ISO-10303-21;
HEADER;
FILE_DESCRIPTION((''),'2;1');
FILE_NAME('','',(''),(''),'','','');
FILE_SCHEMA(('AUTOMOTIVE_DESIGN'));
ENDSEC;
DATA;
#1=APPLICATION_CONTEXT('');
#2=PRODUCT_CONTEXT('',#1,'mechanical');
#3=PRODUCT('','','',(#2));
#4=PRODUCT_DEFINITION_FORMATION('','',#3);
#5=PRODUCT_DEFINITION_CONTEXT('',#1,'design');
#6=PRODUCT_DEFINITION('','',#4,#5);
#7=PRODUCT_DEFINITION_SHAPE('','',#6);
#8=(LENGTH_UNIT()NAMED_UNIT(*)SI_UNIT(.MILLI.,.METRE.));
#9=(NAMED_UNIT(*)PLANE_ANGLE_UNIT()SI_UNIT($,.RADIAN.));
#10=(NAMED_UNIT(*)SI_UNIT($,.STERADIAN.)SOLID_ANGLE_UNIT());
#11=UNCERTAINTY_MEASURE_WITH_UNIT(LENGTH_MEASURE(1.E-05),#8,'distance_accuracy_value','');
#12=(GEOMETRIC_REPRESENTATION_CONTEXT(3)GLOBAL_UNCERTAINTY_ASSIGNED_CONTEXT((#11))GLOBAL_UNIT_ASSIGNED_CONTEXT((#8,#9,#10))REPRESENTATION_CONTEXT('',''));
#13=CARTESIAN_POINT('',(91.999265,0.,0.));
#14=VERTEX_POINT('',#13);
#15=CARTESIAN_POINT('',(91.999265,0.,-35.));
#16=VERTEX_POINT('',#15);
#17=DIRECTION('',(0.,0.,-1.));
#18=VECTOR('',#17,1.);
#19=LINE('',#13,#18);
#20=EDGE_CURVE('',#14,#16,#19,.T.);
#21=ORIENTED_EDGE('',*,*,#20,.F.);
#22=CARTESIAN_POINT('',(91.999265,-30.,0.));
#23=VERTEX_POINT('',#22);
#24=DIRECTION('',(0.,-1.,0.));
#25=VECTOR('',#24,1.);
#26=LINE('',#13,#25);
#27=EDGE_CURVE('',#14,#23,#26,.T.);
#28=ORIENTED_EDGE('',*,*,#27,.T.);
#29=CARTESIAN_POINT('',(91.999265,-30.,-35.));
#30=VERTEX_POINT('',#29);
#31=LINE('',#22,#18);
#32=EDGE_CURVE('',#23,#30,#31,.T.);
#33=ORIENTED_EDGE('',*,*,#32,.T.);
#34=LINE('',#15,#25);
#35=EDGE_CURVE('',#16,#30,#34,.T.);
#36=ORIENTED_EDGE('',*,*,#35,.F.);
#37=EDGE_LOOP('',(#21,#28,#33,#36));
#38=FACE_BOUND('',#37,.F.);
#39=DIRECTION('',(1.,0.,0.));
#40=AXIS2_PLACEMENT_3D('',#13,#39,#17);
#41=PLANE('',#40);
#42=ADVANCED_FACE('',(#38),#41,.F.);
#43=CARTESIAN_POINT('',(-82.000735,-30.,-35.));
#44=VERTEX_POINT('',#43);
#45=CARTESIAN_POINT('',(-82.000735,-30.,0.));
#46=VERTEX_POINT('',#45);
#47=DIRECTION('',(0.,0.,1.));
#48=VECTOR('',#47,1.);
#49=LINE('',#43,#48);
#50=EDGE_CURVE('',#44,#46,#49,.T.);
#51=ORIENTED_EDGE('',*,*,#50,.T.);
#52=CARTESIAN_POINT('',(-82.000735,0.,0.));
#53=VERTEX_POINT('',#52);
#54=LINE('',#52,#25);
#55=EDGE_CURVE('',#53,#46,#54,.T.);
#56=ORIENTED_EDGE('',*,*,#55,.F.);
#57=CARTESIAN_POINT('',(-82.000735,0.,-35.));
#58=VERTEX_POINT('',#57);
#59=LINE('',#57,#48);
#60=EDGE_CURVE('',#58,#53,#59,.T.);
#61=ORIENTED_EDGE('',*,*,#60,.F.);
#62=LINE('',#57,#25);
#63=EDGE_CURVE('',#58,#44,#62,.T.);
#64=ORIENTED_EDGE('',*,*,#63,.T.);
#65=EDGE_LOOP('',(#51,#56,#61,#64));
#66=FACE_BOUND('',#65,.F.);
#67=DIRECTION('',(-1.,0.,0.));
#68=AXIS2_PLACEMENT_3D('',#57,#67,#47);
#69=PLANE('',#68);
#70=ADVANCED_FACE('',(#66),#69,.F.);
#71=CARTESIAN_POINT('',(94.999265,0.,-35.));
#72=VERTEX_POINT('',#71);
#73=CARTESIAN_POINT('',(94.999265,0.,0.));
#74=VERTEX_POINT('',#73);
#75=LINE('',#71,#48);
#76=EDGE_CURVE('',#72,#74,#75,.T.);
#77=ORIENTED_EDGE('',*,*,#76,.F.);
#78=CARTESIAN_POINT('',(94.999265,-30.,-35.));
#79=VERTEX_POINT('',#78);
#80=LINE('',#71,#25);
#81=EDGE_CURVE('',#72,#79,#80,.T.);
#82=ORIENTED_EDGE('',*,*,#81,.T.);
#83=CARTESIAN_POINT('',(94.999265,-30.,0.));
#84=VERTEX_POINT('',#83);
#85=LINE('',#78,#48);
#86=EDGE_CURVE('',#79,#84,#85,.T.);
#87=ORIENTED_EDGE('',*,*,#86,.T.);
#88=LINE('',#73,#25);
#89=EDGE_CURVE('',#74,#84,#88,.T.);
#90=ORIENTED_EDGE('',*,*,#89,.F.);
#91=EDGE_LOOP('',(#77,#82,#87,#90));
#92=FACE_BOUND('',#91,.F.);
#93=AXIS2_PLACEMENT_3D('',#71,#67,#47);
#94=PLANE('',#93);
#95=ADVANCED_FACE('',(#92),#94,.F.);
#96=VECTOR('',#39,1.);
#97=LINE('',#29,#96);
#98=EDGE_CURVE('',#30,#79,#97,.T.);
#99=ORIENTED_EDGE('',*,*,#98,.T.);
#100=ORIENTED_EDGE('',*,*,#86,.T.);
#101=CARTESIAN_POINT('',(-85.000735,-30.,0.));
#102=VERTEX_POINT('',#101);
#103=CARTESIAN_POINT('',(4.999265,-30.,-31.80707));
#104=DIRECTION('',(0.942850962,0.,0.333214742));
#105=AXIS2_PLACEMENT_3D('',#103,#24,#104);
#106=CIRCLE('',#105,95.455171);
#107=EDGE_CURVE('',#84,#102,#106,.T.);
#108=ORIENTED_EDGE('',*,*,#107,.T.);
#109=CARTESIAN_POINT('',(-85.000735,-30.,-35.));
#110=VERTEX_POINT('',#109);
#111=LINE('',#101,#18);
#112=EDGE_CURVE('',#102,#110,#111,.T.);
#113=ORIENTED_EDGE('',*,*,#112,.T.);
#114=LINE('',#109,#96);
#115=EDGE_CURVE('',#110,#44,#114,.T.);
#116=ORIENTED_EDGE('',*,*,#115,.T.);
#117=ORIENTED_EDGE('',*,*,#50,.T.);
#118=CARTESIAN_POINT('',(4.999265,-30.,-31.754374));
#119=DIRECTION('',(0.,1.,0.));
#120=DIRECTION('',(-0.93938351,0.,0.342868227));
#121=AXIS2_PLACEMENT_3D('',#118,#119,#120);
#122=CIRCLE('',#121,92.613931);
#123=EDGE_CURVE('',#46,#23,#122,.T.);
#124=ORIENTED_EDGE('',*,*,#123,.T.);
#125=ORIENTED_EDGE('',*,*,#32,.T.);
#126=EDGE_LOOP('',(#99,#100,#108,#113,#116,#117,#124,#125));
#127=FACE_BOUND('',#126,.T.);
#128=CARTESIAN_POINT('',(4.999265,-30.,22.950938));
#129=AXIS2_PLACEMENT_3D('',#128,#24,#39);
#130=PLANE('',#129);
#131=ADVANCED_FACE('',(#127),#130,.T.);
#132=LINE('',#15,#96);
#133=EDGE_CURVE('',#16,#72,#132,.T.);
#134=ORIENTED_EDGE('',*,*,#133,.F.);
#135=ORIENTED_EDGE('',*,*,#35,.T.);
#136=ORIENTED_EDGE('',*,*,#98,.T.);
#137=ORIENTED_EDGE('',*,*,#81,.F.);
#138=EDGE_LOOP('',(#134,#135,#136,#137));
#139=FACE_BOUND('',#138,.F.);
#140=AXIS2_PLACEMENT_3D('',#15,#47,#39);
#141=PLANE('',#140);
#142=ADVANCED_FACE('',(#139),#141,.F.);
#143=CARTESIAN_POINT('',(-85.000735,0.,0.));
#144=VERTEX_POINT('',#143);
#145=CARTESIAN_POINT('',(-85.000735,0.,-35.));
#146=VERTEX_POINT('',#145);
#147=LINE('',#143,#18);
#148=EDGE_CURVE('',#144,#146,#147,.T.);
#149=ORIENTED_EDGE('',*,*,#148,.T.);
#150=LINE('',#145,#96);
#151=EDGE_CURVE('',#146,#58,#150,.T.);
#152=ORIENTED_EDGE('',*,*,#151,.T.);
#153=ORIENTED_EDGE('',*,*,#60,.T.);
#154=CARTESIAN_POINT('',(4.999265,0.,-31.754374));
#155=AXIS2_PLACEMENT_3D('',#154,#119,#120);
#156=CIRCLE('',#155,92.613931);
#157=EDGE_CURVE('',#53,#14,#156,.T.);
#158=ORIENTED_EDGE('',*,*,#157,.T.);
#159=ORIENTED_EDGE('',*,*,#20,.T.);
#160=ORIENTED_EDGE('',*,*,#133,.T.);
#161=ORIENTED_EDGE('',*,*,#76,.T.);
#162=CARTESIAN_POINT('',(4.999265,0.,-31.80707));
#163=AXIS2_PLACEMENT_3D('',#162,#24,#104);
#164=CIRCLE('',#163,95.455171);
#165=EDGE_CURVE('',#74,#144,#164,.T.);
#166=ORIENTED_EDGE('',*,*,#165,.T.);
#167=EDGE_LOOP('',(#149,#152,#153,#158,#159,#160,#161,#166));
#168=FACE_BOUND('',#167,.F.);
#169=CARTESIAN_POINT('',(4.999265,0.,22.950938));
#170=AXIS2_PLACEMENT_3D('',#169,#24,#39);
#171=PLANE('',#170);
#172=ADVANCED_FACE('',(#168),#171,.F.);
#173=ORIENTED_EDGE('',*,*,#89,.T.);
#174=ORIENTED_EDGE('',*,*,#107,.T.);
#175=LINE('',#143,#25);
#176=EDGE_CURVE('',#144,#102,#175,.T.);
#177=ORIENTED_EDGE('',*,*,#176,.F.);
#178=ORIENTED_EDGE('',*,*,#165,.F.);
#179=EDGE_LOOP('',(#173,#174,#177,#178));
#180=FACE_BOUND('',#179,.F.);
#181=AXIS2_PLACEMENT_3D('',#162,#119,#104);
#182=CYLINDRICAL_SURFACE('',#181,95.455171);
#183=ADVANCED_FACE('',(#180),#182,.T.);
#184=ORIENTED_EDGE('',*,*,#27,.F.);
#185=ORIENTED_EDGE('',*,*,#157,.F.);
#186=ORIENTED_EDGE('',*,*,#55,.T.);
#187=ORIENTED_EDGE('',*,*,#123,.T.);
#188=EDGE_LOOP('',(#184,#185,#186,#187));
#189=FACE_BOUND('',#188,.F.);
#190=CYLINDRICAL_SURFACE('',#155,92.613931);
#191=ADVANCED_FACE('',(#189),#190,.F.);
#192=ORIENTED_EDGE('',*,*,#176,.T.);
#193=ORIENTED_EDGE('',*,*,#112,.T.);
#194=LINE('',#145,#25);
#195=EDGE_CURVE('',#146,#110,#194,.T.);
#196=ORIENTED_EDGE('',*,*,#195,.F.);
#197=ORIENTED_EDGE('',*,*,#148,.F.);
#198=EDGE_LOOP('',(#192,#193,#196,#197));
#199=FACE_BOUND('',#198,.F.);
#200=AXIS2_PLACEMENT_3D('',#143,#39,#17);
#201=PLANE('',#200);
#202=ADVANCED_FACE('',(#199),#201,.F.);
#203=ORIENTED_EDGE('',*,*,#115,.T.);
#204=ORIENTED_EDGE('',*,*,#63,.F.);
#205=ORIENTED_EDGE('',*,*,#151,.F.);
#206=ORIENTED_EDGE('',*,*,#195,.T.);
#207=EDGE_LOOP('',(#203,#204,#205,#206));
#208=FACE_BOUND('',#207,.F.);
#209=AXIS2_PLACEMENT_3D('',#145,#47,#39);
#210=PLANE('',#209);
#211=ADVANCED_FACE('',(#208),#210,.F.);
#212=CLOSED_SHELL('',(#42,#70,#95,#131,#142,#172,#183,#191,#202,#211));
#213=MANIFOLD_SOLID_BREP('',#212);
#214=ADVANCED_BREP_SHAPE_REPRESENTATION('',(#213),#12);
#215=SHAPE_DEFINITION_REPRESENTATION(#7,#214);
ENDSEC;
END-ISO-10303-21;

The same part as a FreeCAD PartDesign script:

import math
import FreeCAD as App
import Part
import Sketcher
from FreeCAD import Vector

doc = App.newDocument("Part")
body = doc.addObject("PartDesign::Body", "Body")

sketch1 = doc.addObject("Sketcher::SketchObject", "Sketch")
body.addObject(sketch1)
sketch1.AttachmentSupport = (doc.XZ_Plane, [""])
sketch1.MapMode = "FlatFace"
sketch1.addGeometry([
    Part.LineSegment(Vector(94.999265, -35, 0), Vector(94.999265, 0, 0)),
    Part.ArcOfCircle(Part.Circle(Vector(4.999265, -31.80707, 0), Vector(0, 0, 1), 95.455171), math.radians(19.464014), math.radians(160.535986)),
    Part.LineSegment(Vector(-85.000735, 0, 0), Vector(-85.000735, -35, 0)),
    Part.LineSegment(Vector(-85.000735, -35, 0), Vector(-82.000735, -35, 0)),
    Part.LineSegment(Vector(-82.000735, -35, 0), Vector(-82.000735, 0, 0)),
    Part.ArcOfCircle(Part.Circle(Vector(4.999265, -31.754374, 0), Vector(0, 0, 1), 92.613931), math.radians(20.051719), math.radians(159.948281)),
    Part.LineSegment(Vector(91.999265, 0, 0), Vector(91.999265, -35, 0)),
    Part.LineSegment(Vector(91.999265, -35, 0), Vector(94.999265, -35, 0)),
], False)
sketch1.addConstraint([
    Sketcher.Constraint("Coincident", 0, 2, 1, 1),
    Sketcher.Constraint("Coincident", 1, 2, 2, 1),
    Sketcher.Constraint("Coincident", 2, 2, 3, 1),
    Sketcher.Constraint("Coincident", 3, 2, 4, 1),
    Sketcher.Constraint("Coincident", 4, 2, 5, 2),
    Sketcher.Constraint("Coincident", 5, 1, 6, 1),
    Sketcher.Constraint("Coincident", 6, 2, 7, 1),
    Sketcher.Constraint("Coincident", 7, 2, 0, 1),
    Sketcher.Constraint("Vertical", 0),
    Sketcher.Constraint("Vertical", 2),
    Sketcher.Constraint("Horizontal", 3),
    Sketcher.Constraint("Vertical", 4),
    Sketcher.Constraint("Vertical", 6),
    Sketcher.Constraint("Horizontal", 7),
    Sketcher.Constraint("PointOnObject", 0, 2, -1),
    Sketcher.Constraint("PointOnObject", 1, 2, -1),
    Sketcher.Constraint("PointOnObject", 4, 2, -1),
    Sketcher.Constraint("PointOnObject", 5, 1, -1),
    Sketcher.Constraint("Horizontal", 3, 2, 6, 2),
    Sketcher.Constraint("Vertical", 1, 3, 5, 3),
    Sketcher.Constraint("DistanceX", 3, 1, 3, 2, 3.0),
    Sketcher.Constraint("DistanceY", 0, 1, 0, 2, 35.0),
    Sketcher.Constraint("DistanceX", 5, 3, 0, 2, 90.0),
    Sketcher.Constraint("Radius", 1, 95.455171),
    Sketcher.Constraint("Radius", 5, 92.613931),
    Sketcher.Constraint("DistanceX", -1, 1, 1, 3, 4.999265),
])
pad1 = doc.addObject("PartDesign::Pad", "Pad")
body.addObject(pad1)
pad1.Profile = sketch1
pad1.Length = 30

doc.recompute()
